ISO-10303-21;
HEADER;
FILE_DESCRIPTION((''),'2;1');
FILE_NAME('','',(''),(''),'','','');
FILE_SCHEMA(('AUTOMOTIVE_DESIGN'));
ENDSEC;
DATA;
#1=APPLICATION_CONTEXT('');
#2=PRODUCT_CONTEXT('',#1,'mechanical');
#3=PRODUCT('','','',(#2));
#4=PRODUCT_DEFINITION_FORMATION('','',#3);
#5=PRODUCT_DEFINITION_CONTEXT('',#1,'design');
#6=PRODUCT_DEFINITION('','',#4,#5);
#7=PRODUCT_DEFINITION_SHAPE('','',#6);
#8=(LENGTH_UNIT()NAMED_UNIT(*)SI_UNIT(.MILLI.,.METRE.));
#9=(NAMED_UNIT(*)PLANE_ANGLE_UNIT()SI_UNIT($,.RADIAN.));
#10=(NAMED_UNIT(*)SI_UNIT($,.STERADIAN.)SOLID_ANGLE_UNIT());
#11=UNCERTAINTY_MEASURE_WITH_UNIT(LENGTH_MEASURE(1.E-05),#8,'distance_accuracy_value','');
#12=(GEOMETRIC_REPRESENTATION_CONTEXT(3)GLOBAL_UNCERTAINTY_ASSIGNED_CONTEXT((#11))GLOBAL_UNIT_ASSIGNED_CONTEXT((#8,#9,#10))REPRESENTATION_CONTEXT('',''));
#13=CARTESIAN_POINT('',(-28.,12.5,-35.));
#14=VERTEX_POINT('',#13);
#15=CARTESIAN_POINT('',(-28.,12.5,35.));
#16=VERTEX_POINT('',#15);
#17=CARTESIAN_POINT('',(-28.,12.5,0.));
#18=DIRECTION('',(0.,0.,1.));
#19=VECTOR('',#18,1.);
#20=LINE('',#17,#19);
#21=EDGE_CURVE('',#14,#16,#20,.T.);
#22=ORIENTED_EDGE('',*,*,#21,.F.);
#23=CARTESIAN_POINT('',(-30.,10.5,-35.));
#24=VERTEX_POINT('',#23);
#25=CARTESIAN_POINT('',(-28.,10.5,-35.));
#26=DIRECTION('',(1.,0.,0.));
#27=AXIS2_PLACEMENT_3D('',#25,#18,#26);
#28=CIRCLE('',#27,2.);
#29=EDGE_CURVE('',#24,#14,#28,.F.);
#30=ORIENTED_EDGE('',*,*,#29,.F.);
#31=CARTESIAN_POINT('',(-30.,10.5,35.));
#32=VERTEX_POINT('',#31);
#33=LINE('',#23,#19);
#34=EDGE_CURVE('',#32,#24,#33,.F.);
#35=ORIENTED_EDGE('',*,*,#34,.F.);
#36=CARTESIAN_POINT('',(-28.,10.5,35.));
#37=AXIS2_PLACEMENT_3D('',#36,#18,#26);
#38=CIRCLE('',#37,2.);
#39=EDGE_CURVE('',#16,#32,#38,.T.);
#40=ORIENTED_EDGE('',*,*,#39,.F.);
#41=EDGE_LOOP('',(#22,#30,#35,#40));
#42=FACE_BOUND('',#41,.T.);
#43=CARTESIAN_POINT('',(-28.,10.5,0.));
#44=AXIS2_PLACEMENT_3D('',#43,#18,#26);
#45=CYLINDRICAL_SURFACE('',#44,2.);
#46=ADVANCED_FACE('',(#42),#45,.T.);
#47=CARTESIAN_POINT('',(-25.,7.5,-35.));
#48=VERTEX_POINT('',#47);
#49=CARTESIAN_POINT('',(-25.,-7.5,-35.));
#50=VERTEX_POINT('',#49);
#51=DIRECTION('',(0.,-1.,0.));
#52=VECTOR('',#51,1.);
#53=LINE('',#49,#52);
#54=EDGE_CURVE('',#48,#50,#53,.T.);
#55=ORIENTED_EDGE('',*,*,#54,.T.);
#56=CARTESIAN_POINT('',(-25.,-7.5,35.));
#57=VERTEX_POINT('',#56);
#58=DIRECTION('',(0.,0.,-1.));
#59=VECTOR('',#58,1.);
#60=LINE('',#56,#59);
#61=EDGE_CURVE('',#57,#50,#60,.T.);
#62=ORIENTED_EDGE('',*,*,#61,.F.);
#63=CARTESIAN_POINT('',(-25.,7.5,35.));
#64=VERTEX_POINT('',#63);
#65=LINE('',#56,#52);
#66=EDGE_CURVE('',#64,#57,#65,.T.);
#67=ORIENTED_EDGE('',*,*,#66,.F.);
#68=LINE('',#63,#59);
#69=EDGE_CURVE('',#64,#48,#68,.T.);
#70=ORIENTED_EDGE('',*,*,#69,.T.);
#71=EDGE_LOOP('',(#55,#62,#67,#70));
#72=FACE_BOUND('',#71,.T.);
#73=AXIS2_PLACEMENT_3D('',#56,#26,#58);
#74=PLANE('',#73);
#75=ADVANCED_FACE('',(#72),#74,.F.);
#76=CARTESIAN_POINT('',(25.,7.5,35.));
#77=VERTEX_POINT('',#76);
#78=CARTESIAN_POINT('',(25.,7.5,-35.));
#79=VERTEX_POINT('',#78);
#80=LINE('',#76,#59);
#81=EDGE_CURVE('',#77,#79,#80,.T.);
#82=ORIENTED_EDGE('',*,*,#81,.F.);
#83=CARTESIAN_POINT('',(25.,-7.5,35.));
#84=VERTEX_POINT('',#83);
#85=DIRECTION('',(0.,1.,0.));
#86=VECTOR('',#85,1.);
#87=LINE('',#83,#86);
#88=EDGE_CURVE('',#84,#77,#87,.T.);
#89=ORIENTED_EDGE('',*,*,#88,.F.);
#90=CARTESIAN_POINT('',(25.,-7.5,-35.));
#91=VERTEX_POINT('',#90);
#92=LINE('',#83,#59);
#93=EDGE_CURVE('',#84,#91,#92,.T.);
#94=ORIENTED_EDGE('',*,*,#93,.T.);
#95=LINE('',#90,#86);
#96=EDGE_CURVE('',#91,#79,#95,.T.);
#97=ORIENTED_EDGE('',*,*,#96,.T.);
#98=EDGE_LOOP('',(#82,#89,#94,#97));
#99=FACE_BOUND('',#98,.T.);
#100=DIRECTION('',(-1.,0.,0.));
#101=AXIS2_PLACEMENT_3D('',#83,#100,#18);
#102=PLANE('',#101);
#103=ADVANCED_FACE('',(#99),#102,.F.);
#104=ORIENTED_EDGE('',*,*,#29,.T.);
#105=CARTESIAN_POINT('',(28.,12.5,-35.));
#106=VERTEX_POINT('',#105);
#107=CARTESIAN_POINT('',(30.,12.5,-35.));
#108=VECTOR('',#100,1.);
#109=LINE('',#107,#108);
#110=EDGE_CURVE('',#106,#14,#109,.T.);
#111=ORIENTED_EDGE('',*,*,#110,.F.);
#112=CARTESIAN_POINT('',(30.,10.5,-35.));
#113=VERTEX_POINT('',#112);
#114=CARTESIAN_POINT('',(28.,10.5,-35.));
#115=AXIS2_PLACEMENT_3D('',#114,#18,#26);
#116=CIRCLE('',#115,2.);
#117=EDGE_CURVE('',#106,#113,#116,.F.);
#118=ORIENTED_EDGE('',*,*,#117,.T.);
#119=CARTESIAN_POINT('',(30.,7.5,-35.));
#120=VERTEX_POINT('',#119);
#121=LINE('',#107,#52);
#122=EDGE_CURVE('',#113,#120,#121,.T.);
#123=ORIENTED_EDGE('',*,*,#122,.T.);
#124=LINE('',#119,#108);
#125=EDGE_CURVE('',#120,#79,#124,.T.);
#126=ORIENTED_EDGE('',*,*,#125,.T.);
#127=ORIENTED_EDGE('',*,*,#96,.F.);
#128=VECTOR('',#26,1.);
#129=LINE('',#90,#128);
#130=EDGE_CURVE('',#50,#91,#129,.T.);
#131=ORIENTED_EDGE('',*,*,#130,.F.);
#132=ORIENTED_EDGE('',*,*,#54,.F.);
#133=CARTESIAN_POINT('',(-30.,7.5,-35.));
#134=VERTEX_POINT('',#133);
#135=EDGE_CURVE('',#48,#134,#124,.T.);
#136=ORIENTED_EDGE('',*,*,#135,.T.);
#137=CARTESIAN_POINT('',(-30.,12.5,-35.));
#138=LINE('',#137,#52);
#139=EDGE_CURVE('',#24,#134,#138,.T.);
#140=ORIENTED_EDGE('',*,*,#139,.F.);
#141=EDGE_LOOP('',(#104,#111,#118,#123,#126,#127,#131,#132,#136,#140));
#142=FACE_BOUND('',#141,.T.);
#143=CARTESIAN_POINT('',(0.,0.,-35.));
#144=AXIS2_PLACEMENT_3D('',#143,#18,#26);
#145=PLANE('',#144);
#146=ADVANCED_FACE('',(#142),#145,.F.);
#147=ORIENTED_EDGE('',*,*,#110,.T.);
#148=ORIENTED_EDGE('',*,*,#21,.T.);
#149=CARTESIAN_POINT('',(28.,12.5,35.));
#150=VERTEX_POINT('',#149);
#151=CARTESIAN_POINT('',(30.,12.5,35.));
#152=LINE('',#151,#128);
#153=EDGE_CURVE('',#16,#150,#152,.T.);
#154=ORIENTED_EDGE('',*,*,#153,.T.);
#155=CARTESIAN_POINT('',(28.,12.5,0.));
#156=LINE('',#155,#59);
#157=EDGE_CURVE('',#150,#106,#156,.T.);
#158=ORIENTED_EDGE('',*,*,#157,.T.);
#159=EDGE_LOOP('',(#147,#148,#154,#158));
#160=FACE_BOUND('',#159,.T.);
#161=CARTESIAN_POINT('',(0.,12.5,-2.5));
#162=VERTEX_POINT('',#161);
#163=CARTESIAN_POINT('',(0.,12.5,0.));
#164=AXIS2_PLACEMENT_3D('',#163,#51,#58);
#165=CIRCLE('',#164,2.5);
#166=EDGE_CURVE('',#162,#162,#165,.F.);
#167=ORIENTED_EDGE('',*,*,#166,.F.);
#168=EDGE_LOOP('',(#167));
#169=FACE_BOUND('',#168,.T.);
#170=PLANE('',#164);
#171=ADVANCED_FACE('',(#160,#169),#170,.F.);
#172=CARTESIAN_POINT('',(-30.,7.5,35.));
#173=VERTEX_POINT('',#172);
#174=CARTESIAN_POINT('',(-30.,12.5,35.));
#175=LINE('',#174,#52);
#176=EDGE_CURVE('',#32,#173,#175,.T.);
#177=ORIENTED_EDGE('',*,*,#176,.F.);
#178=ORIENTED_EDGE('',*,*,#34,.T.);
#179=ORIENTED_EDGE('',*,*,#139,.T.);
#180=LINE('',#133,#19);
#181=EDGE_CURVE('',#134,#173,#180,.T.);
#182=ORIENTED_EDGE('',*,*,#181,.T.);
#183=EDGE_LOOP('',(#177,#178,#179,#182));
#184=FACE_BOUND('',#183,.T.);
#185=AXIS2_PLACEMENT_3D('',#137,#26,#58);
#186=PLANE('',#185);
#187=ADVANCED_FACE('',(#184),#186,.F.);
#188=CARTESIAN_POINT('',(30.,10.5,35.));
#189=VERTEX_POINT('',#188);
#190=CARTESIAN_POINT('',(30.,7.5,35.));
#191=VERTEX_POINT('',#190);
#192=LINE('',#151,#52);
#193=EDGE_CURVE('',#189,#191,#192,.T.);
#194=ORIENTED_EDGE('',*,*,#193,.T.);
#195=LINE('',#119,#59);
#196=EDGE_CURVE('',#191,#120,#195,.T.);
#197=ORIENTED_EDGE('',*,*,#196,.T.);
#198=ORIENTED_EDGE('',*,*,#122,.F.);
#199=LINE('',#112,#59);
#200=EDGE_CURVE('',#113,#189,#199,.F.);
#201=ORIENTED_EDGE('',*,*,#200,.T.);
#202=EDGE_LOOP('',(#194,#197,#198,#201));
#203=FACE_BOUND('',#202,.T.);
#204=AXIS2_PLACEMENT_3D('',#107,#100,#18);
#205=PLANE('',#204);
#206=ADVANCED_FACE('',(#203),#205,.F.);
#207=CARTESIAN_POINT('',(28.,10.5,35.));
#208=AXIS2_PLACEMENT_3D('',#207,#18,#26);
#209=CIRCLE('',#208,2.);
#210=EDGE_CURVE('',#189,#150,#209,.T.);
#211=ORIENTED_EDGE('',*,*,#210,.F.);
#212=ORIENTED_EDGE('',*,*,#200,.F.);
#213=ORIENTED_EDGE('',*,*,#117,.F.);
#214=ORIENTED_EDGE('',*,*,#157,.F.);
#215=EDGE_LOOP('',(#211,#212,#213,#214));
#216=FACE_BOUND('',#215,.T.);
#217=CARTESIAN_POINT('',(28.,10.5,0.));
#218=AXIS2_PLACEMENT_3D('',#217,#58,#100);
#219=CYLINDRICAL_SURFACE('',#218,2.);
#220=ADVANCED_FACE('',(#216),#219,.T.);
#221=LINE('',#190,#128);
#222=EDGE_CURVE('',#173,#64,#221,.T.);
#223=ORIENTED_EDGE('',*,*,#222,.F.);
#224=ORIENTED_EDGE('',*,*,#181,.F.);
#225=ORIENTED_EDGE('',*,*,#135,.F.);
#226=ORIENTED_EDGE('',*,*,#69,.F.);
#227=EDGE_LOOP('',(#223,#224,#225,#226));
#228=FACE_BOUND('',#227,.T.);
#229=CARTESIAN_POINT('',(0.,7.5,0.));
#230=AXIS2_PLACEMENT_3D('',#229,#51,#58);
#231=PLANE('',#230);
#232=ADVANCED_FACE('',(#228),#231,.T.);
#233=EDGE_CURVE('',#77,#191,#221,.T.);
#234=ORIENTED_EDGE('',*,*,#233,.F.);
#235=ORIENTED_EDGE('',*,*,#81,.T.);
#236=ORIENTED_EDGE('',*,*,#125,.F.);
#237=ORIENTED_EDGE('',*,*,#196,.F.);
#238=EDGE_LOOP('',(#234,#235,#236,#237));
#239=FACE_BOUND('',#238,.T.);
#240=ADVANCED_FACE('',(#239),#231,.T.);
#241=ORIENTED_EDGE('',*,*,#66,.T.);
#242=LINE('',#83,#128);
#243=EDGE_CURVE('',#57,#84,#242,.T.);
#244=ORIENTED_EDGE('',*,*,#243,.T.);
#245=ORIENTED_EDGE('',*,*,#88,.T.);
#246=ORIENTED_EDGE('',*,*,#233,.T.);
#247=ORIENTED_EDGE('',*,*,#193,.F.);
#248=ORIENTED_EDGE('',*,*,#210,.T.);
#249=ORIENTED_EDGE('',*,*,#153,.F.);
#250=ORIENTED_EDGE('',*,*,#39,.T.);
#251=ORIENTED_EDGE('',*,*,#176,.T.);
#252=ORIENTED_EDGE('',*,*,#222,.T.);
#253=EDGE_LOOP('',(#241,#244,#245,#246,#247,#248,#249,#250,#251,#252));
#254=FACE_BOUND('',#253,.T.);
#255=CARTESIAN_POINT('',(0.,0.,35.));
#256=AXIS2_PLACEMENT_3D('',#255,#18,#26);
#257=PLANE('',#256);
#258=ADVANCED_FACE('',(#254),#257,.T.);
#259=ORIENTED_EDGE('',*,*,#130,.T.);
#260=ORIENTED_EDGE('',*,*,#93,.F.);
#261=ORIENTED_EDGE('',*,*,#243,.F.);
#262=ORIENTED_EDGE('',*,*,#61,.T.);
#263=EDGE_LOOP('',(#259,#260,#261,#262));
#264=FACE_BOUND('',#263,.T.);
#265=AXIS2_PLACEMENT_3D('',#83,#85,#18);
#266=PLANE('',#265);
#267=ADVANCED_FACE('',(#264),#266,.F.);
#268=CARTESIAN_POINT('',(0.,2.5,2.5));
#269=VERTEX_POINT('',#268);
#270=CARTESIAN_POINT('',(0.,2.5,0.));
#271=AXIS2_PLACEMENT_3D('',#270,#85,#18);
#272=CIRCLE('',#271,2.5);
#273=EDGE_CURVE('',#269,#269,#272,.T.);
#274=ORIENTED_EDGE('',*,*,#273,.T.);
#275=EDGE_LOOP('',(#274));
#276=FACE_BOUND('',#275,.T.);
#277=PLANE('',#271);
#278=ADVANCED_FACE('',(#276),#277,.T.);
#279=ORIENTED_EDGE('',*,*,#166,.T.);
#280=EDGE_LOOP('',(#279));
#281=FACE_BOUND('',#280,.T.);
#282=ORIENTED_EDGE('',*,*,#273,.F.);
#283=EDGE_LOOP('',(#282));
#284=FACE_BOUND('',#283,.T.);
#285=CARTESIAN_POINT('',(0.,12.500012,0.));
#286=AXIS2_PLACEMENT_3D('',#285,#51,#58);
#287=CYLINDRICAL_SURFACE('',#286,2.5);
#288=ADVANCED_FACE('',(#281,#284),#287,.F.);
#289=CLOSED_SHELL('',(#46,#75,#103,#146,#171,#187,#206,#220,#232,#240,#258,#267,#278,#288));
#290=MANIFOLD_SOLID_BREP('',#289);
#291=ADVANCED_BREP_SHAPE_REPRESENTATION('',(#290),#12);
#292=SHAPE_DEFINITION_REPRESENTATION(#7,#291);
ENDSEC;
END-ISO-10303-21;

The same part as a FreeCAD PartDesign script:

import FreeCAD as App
import Part
import Sketcher

V = App.Vector
Q = App.Units.Quantity


def edges_at(feature, points):
    """Names of the edges that pass closest to the given points."""
    edges = feature.Shape.Edges
    near = lambda p: min(range(len(edges)), key=lambda i: edges[i].distToShape(Part.Vertex(*p))[0])
    return sorted({f"Edge{near(p) + 1}" for p in points})


def add_polygon(sketch, points):
    """Adds a closed chain of lines whose ends are joined by coincident constraints."""
    first, n = sketch.GeometryCount, len(points)
    for a, b in zip(points, points[1:] + points[:1]):
        sketch.addGeometry(Part.LineSegment(App.Vector(*a, 0), App.Vector(*b, 0)), False)
    for i in range(n):
        sketch.addConstraint(Sketcher.Constraint("Coincident", first + i, 2, first + (i + 1) % n, 1))

doc = App.newDocument("Part")
params = doc.addObject("Spreadsheet::Sheet", "Params")
for row, (alias, value) in enumerate([
    ("sketch1_width", "50 mm"),
    ("sketch1_height", "15 mm"),
    ("pad1_length", "70 mm"),
    ("sketch2_width", "60 mm"),
    ("sketch2_height", "70 mm"),
    ("pad2_length", "5 mm"),
    ("sketch3_diameter", "5 mm"),
    ("pocket1_length", "1 mm"),
    ("pocket1_length2", "10 mm"),
    ("fillet_radius", "2 mm"),
], start=1):
    params.set(f"A{row}", alias)
    params.set(f"B{row}", "=" + value)
    params.setAlias(f"B{row}", alias)

body = doc.addObject("PartDesign::Body", "Body")

sketch1 = body.newObject("Sketcher::SketchObject", "Sketch")
sketch1.AttachmentSupport = (doc.getObject("XY_Plane"), [""])
sketch1.MapMode = "FlatFace"
add_polygon(sketch1, [(-25, 8), (-25, -8), (25, -8), (25, 8)])
sketch1.addConstraint([
    Sketcher.Constraint("Vertical", 0),
    Sketcher.Constraint("Horizontal", 1),
    Sketcher.Constraint("Vertical", 2),
    Sketcher.Constraint("Horizontal", 3),
    Sketcher.Constraint("Symmetric", 0, 2, 2, 2, -1, 1),
    Sketcher.Constraint("DistanceX", 1, 1, 1, 2, Q("50 mm")),
    Sketcher.Constraint("DistanceY", 0, 2, 0, 1, Q("15 mm")),
])
sketch1.setExpression("Constraints[9]", "Params.sketch1_width")
sketch1.setExpression("Constraints[10]", "Params.sketch1_height")
pad1 = body.newObject("PartDesign::Pad", "Pad")
pad1.Profile = sketch1
pad1.setExpression("Length", "Params.pad1_length")
pad1.Midplane = True

sketch2 = body.newObject("Sketcher::SketchObject", "Sketch001")
sketch2.AttachmentSupport = (doc.getObject("XZ_Plane"), [""])
sketch2.MapMode = "FlatFace"
sketch2.AttachmentOffset = App.Placement(V(0, 0, -7.5), App.Rotation())
add_polygon(sketch2, [(-30, -35), (-30, 35), (30, 35), (30, -35)])
sketch2.addConstraint([
    Sketcher.Constraint("Vertical", 0),
    Sketcher.Constraint("Horizontal", 1),
    Sketcher.Constraint("Vertical", 2),
    Sketcher.Constraint("Horizontal", 3),
    Sketcher.Constraint("Symmetric", 0, 2, 2, 2, -1, 1),
    Sketcher.Constraint("DistanceX", 1, 1, 1, 2, Q("60 mm")),
    Sketcher.Constraint("DistanceY", 0, 1, 0, 2, Q("70 mm")),
])
sketch2.setExpression("Constraints[9]", "Params.sketch2_width")
sketch2.setExpression("Constraints[10]", "Params.sketch2_height")
pad2 = body.newObject("PartDesign::Pad", "Pad001")
pad2.Profile = sketch2
pad2.setExpression("Length", "Params.pad2_length")
pad2.Reversed = True

sketch3 = body.newObject("Sketcher::SketchObject", "Sketch002")
sketch3.AttachmentSupport = (doc.getObject("XZ_Plane"), [""])
sketch3.MapMode = "FlatFace"
sketch3.AttachmentOffset = App.Placement(V(0, 0, -12.5), App.Rotation())
sketch3.addGeometry(Part.Circle(V(0, 0, 0), V(0, 0, 1), 2.5), False)
sketch3.addConstraint([
    Sketcher.Constraint("Coincident", 0, 3, -1, 1),
    Sketcher.Constraint("Diameter", 0, Q("5 mm")),
])
sketch3.setExpression("Constraints[1]", "Params.sketch3_diameter")
pocket1 = body.newObject("PartDesign::Pocket", "Pocket")
pocket1.Profile = sketch3
pocket1.Type = "TwoLengths"
pocket1.setExpression("Length", "Params.pocket1_length")
pocket1.setExpression("Length2", "Params.pocket1_length2")
doc.recompute()

fillet = body.newObject("PartDesign::Fillet", "Fillet")
fillet.Base = (pocket1, edges_at(pocket1, [(-30, 12.5, 0), (30, 12.5, 0)]))
fillet.setExpression("Radius", "Params.fillet_radius")

doc.recompute()
